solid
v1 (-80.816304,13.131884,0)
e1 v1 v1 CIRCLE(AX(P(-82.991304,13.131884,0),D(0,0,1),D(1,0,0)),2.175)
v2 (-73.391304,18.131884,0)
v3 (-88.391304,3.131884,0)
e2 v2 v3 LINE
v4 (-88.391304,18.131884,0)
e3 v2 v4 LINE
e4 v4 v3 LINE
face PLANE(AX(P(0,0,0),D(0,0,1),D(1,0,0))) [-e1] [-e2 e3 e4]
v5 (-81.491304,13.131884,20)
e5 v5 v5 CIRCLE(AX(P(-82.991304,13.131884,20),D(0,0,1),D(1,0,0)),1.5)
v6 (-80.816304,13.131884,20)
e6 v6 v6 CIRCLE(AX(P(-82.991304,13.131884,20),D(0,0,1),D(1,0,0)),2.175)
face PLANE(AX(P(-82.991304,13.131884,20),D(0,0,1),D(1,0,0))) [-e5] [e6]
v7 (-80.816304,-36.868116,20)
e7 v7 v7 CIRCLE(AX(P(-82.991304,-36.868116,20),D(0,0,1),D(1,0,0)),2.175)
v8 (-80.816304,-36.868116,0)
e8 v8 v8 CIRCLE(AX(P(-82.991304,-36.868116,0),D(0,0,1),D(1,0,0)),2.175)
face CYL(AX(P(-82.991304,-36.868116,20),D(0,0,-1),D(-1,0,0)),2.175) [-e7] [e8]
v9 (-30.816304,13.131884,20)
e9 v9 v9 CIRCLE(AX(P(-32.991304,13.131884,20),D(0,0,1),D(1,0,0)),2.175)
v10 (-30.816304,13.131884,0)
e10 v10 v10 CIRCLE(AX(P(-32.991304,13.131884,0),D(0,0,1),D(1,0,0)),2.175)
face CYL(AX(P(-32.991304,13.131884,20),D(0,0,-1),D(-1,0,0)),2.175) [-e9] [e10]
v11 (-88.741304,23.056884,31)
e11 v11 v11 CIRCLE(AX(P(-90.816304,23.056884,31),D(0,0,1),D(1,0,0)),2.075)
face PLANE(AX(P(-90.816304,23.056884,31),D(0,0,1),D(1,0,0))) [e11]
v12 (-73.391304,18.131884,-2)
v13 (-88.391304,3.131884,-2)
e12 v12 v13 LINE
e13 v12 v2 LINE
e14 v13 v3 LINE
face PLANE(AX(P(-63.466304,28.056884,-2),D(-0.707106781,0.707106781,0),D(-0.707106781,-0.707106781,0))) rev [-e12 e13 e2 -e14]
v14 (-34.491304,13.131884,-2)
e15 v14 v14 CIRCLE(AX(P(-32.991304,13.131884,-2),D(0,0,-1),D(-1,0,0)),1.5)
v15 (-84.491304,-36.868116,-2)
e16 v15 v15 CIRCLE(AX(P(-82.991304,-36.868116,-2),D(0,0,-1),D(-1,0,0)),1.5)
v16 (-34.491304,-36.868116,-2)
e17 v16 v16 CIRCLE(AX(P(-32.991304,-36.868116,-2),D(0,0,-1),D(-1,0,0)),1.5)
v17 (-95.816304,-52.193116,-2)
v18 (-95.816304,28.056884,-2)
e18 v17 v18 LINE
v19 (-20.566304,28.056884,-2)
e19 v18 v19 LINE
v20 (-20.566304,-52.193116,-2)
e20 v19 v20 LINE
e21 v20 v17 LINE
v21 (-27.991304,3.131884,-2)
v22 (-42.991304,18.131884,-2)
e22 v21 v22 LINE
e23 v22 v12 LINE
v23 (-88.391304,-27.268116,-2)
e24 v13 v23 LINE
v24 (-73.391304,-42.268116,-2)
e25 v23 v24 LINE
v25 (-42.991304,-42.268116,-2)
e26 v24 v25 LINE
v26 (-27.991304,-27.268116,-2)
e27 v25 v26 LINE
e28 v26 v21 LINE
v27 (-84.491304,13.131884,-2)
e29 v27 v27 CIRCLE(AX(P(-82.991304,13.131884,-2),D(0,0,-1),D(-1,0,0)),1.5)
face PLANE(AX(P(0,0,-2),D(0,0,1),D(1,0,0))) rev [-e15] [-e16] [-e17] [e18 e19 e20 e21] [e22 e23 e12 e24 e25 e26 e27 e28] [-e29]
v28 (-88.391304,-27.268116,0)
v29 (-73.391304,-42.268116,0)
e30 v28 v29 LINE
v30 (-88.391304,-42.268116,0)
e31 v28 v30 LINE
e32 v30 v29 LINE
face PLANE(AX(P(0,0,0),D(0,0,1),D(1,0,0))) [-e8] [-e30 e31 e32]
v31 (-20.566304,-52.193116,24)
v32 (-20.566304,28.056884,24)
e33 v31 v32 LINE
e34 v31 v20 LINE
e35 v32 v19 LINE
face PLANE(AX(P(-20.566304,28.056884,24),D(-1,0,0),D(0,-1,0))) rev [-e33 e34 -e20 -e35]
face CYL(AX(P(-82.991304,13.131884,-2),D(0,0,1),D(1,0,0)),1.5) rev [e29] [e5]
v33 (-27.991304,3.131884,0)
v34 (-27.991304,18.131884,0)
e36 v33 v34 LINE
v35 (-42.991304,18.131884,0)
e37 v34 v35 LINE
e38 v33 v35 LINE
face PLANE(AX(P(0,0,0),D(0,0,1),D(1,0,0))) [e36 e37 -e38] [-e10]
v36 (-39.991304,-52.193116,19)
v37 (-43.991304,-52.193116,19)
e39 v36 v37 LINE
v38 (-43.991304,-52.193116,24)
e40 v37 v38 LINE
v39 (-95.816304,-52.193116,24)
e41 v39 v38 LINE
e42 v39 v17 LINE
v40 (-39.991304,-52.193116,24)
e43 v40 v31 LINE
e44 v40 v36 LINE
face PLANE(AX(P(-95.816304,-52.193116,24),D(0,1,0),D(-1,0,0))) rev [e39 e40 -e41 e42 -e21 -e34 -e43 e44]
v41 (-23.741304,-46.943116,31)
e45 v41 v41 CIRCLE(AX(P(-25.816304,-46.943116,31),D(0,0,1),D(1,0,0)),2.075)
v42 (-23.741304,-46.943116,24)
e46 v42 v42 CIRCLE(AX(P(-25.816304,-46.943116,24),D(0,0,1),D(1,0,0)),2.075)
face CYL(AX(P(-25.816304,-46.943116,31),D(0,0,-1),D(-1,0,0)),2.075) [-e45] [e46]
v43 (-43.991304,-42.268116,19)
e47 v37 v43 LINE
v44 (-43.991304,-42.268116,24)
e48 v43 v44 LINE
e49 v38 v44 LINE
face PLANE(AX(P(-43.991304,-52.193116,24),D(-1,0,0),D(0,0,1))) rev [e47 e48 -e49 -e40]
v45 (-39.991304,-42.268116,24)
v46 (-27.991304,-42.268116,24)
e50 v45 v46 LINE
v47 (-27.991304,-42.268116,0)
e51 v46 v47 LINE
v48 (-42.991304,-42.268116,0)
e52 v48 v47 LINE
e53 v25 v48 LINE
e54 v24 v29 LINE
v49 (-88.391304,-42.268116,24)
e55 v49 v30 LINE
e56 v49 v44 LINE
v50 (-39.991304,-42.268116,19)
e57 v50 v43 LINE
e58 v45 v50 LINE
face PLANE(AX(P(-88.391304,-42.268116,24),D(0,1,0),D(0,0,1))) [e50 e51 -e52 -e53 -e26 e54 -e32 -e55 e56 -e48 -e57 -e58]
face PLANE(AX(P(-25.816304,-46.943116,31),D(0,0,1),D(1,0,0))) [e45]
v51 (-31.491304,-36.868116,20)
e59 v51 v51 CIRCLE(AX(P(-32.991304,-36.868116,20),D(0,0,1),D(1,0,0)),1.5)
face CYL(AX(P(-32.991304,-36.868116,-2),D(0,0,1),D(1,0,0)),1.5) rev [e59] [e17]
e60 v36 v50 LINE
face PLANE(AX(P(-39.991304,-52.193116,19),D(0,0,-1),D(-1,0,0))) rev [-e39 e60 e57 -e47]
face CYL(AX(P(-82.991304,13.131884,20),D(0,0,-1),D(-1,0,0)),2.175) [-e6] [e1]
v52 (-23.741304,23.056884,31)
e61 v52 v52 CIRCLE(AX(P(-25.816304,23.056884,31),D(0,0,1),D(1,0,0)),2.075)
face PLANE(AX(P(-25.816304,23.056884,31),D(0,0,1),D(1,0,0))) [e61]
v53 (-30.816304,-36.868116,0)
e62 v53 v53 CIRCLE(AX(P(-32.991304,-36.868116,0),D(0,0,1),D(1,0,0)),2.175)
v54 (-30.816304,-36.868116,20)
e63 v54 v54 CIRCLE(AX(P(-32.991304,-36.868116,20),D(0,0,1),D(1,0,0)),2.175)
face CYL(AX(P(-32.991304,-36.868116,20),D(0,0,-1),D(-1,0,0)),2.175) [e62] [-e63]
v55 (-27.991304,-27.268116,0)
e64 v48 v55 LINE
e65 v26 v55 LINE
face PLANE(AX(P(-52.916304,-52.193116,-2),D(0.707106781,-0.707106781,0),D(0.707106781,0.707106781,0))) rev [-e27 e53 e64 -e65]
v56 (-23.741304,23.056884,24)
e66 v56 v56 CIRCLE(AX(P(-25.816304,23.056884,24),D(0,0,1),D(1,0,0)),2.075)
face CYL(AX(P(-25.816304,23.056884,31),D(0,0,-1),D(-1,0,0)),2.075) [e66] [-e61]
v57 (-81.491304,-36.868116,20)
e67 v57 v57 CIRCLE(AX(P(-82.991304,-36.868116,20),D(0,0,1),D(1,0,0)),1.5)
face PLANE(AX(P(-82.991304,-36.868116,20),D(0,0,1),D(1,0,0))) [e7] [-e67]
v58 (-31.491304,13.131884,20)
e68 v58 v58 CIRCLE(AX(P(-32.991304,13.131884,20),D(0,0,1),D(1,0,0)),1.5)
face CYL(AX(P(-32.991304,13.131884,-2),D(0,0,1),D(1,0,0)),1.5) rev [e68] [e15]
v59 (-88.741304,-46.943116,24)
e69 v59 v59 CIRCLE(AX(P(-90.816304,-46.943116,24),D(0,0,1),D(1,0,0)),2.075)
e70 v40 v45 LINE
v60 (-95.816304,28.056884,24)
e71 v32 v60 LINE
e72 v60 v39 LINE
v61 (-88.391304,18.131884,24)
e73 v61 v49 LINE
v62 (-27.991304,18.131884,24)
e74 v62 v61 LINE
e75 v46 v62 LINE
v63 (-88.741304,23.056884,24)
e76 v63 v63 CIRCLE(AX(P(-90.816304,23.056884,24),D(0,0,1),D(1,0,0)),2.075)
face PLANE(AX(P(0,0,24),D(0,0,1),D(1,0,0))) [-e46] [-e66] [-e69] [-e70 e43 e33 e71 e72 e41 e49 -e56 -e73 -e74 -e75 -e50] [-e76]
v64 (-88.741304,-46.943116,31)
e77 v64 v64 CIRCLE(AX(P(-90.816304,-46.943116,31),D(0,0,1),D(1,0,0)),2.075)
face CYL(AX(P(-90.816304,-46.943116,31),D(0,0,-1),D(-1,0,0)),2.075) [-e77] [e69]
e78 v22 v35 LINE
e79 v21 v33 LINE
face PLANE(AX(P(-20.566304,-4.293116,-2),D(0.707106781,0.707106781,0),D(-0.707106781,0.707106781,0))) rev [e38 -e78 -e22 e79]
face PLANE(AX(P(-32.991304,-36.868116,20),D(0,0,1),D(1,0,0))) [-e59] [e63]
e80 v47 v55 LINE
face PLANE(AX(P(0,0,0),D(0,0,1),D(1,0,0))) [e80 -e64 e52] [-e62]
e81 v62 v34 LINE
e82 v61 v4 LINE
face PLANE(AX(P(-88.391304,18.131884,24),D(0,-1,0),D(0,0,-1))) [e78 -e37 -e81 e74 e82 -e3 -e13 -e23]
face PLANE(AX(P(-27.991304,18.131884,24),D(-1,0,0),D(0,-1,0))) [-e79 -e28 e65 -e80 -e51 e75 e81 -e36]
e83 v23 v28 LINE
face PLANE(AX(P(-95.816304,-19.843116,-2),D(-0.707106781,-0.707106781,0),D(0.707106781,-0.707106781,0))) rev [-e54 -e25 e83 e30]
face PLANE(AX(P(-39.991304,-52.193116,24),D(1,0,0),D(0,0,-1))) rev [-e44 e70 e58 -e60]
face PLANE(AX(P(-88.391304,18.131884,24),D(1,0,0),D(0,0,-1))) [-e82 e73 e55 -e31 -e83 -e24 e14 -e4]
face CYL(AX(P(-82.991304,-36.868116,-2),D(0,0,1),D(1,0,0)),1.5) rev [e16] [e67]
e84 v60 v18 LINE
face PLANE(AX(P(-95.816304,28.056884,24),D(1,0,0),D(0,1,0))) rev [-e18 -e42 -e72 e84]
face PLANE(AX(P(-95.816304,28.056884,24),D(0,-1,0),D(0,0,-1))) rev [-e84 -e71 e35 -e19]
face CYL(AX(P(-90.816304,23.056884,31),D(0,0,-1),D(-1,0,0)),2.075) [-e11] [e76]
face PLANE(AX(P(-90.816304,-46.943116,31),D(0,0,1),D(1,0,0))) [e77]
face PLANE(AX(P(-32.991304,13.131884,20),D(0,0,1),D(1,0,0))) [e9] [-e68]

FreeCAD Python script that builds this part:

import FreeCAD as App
import Part
import Sketcher

V = App.Vector
Q = App.Units.Quantity

doc = App.newDocument("Part")
params = doc.addObject("Spreadsheet::Sheet", "Params")
for row, (alias, value) in enumerate([
    ("sketch1_width", "60.4 mm"),
    ("sketch1_width2", "75.25 mm"),
    ("sketch1_height", "80.25 mm"),
    ("pad1_length", "24 mm"),
    ("sketch2_diameter", "4.15 mm"),
    ("pad2_length", "7 mm"),
    ("sketch3_diameter", "3 mm"),
    ("sketch3_width", "32.35 mm"),
    ("pad3_length", "2 mm"),
    ("sketch4_diameter", "3 mm"),
    ("sketch4_diameter2", "4.35 mm"),
    ("pad4_length", "20 mm"),
    ("sketch5_width", "4 mm"),
    ("sketch5_height", "5 mm"),
    ("pocket1_length", "9.925 mm"),
    ("sketch6_width", "30.4 mm"),
    ("sketch6_width2", "10.55 mm"),
    ("sketch6_height", "15.55 mm"),
    ("pad5_length", "2 mm"),
], start=1):
    params.set(f"A{row}", alias)
    params.set(f"B{row}", "=" + value)
    params.setAlias(f"B{row}", alias)

body = doc.addObject("PartDesign::Body", "Body")

sketch1 = body.newObject("Sketcher::SketchObject", "Sketch")
sketch1.AttachmentSupport = (doc.getObject("XY_Plane"), [""])
sketch1.MapMode = "FlatFace"
sketch1.addGeometry([
    Part.LineSegment(V(-96, 28, 0), V(-96, -52, 0)),
    Part.LineSegment(V(-96, -52, 0), V(-21, -52, 0)),
    Part.LineSegment(V(-21, -52, 0), V(-21, 28, 0)),
    Part.LineSegment(V(-21, 28, 0), V(-96, 28, 0)),
    Part.LineSegment(V(-28, -42, 0), V(-88, -42, 0)),
    Part.LineSegment(V(-88, -42, 0), V(-88, 18, 0)),
    Part.LineSegment(V(-88, 18, 0), V(-28, 18, 0)),
    Part.LineSegment(V(-28, 18, 0), V(-28, -42, 0)),
], False)
sketch1.addConstraint([
    Sketcher.Constraint("Coincident", 0, 2, 1, 1),
    Sketcher.Constraint("Coincident", 1, 2, 2, 1),
    Sketcher.Constraint("Coincident", 2, 2, 3, 1),
    Sketcher.Constraint("Coincident", 3, 2, 0, 1),
    Sketcher.Constraint("Coincident", 4, 2, 5, 1),
    Sketcher.Constraint("Coincident", 5, 2, 6, 1),
    Sketcher.Constraint("Coincident", 6, 2, 7, 1),
    Sketcher.Constraint("Coincident", 7, 2, 4, 1),
    Sketcher.Constraint("Vertical", 0),
    Sketcher.Constraint("Horizontal", 1),
    Sketcher.Constraint("Vertical", 2),
    Sketcher.Constraint("Horizontal", 3),
    Sketcher.Constraint("Horizontal", 4),
    Sketcher.Constraint("Vertical", 5),
    Sketcher.Constraint("Horizontal", 6),
    Sketcher.Constraint("Vertical", 7),
    Sketcher.Constraint("Equal", 6, 5),
    Sketcher.Constraint("DistanceX", 4, 2, 4, 1, Q("60.4 mm")),
    Sketcher.Constraint("DistanceX", 1, 1, 1, 2, Q("75.25 mm")),
    Sketcher.Constraint("DistanceY", 0, 2, 0, 1, Q("80.25 mm")),
    Sketcher.Constraint("DistanceX", 0, 2, 4, 2, Q("7.425 mm")),
    Sketcher.Constraint("DistanceY", 0, 2, 4, 2, Q("9.925 mm")),
    Sketcher.Constraint("DistanceX", 0, 2, -1, 1, Q("95.816304 mm")),
    Sketcher.Constraint("DistanceY", 0, 2, -1, 1, Q("52.193116 mm")),
])
sketch1.setExpression("Constraints[17]", "Params.sketch1_width")
sketch1.setExpression("Constraints[18]", "Params.sketch1_width2")
sketch1.setExpression("Constraints[19]", "Params.sketch1_height")
pad1 = body.newObject("PartDesign::Pad", "Pad")
pad1.Profile = sketch1
pad1.setExpression("Length", "Params.pad1_length")

sketch2 = body.newObject("Sketcher::SketchObject", "Sketch001")
sketch2.AttachmentSupport = (doc.getObject("XY_Plane"), [""])
sketch2.MapMode = "FlatFace"
sketch2.AttachmentOffset = App.Placement(V(0, 0, 24), App.Rotation())
sketch2.addGeometry([
    Part.Circle(V(-90.8, 23.1, 0), V(0, 0, 1), 2.1),
    Part.Circle(V(-25.8, 23.1, 0), V(0, 0, 1), 2.1),
    Part.Circle(V(-25.8, -46.9, 0), V(0, 0, 1), 2.1),
    Part.Circle(V(-90.8, -46.9, 0), V(0, 0, 1), 2.1),
], False)
sketch2.addConstraint([
    Sketcher.Constraint("Equal", 0, 1),
    Sketcher.Constraint("Equal", 1, 2),
    Sketcher.Constraint("Equal", 2, 3),
    Sketcher.Constraint("Horizontal", 0, 3, 1, 3),
    Sketcher.Constraint("Horizontal", 2, 3, 3, 3),
    Sketcher.Constraint("Vertical", 1, 3, 2, 3),
    Sketcher.Constraint("Vertical", 0, 3, 3, 3),
    Sketcher.Constraint("Diameter", 0, Q("4.15 mm")),
    Sketcher.Constraint("DistanceX", 0, 3, 1, 3, Q("65 mm")),
    Sketcher.Constraint("DistanceY", 2, 3, 1, 3, Q("70 mm")),
    Sketcher.Constraint("DistanceX", 0, 3, -1, 1, Q("90.816304 mm")),
    Sketcher.Constraint("DistanceY", -1, 1, 0, 3, Q("23.056884 mm")),
])
sketch2.setExpression("Constraints[7]", "Params.sketch2_diameter")
pad2 = body.newObject("PartDesign::Pad", "Pad001")
pad2.Profile = sketch2
pad2.setExpression("Length", "Params.pad2_length")

sketch3 = body.newObject("Sketcher::SketchObject", "Sketch002")
sketch3.AttachmentSupport = (doc.getObject("XY_Plane"), [""])
sketch3.MapMode = "FlatFace"
sketch3.addGeometry([
    Part.LineSegment(V(-20.6, -19.8, 0), V(-20.6, -52.2, 0)),
    Part.LineSegment(V(-20.6, -52.2, 0), V(-52.9, -52.2, 0)),
    Part.LineSegment(V(-52.9, -52.2, 0), V(-20.6, -19.8, 0)),
    Part.Circle(V(-33, -36.9, 0), V(0, 0, 1), 1.5),
    Part.LineSegment(V(-95.8, -4.3, 0), V(-95.8, 28.1, 0)),
    Part.LineSegment(V(-95.8, 28.1, 0), V(-63.5, 28.1, 0)),
    Part.LineSegment(V(-63.5, 28.1, 0), V(-95.8, -4.3, 0)),
    Part.Circle(V(-83, 13.1, 0), V(0, 0, 1), 1.5),
    Part.LineSegment(V(-95.8, -19.8, 0), V(-63.5, -52.2, 0)),
    Part.LineSegment(V(-63.5, -52.2, 0), V(-95.8, -52.2, 0)),
    Part.LineSegment(V(-95.8, -52.2, 0), V(-95.8, -19.8, 0)),
    Part.Circle(V(-83, -36.9, 0), V(0, 0, 1), 1.5),
    Part.LineSegment(V(-20.6, -4.3, 0), V(-52.9, 28.1, 0)),
    Part.LineSegment(V(-52.9, 28.1, 0), V(-20.6, 28.1, 0)),
    Part.LineSegment(V(-20.6, 28.1, 0), V(-20.6, -4.3, 0)),
    Part.Circle(V(-33, 13.1, 0), V(0, 0, 1), 1.5),
], False)
sketch3.addConstraint([
    Sketcher.Constraint("Coincident", 0, 2, 1, 1),
    Sketcher.Constraint("Coincident", 1, 2, 2, 1),
    Sketcher.Constraint("Coincident", 2, 2, 0, 1),
    Sketcher.Constraint("Coincident", 4, 2, 5, 1),
    Sketcher.Constraint("Coincident", 5, 2, 6, 1),
    Sketcher.Constraint("Coincident", 6, 2, 4, 1),
    Sketcher.Constraint("Coincident", 8, 2, 9, 1),
    Sketcher.Constraint("Coincident", 9, 2, 10, 1),
    Sketcher.Constraint("Coincident", 10, 2, 8, 1),
    Sketcher.Constraint("Coincident", 12, 2, 13, 1),
    Sketcher.Constraint("Coincident", 13, 2, 14, 1),
    Sketcher.Constraint("Coincident", 14, 2, 12, 1),
    Sketcher.Constraint("Vertical", 0),
    Sketcher.Constraint("Horizontal", 1),
    Sketcher.Constraint("Vertical", 4),
    Sketcher.Constraint("Horizontal", 5),
    Sketcher.Constraint("Horizontal", 9),
    Sketcher.Constraint("Vertical", 10),
    Sketcher.Constraint("Horizontal", 13),
    Sketcher.Constraint("Vertical", 14),
    Sketcher.Constraint("Equal", 3, 7),
    Sketcher.Constraint("Equal", 7, 11),
    Sketcher.Constraint("Equal", 11, 15),
    Sketcher.Constraint("Parallel", 2, 6),
    Sketcher.Constraint("Perpendicular", 6, 8),
    Sketcher.Constraint("Parallel", 8, 12),
    Sketcher.Constraint("Horizontal", 3, 3, 11, 3),
    Sketcher.Constraint("Horizontal", 7, 3, 15, 3),
    Sketcher.Constraint("Horizontal", 1, 2, 8, 2),
    Sketcher.Constraint("Horizontal", 2, 2, 10, 2),
    Sketcher.Constraint("Horizontal", 5, 2, 12, 2),
    Sketcher.Constraint("Horizontal", 6, 2, 14, 2),
    Sketcher.Constraint("Vertical", 7, 3, 11, 3),
    Sketcher.Constraint("Vertical", 3, 3, 15, 3),
    Sketcher.Constraint("Vertical", 5, 2, 8, 2),
    Sketcher.Constraint("Vertical", 6, 2, 9, 2),
    Sketcher.Constraint("Vertical", 1, 2, 12, 2),
    Sketcher.Constraint("Vertical", 2, 2, 13, 2),
    Sketcher.Constraint("Diameter", 3, Q("3 mm")),
    Sketcher.Constraint("DistanceX", 7, 3, 3, 3, Q("50 mm")),
    Sketcher.Constraint("DistanceY", 3, 3, 7, 3, Q("50 mm")),
    Sketcher.Constraint("DistanceX", 1, 2, 1, 1, Q("32.35 mm")),
    Sketcher.Constraint("DistanceY", 2, 2, 4, 2, Q("47.9 mm")),
    Sketcher.Constraint("DistanceX", 5, 2, 2, 2, Q("42.9 mm")),
    Sketcher.Constraint("DistanceX", 3, 3, 0, 2, Q("12.425 mm")),
    Sketcher.Constraint("DistanceY", 0, 2, 3, 3, Q("15.325 mm")),
    Sketcher.Constraint("DistanceX", 3, 3, -1, 1, Q("32.991304 mm")),
    Sketcher.Constraint("DistanceY", 3, 3, -1, 1, Q("36.868116 mm")),
])
sketch3.setExpression("Constraints[38]", "Params.sketch3_diameter")
sketch3.setExpression("Constraints[41]", "Params.sketch3_width")
pad3 = body.newObject("PartDesign::Pad", "Pad002")
pad3.Profile = sketch3
pad3.setExpression("Length", "Params.pad3_length")
pad3.Reversed = True

sketch4 = body.newObject("Sketcher::SketchObject", "Sketch003")
sketch4.AttachmentSupport = (doc.getObject("XY_Plane"), [""])
sketch4.MapMode = "FlatFace"
sketch4.addGeometry([
    Part.Circle(V(-83, 13.1, 0), V(0, 0, 1), 2.2),
    Part.Circle(V(-83, 13.1, 0), V(0, 0, 1), 1.5),
    Part.Circle(V(-33, 13.1, 0), V(0, 0, 1), 2.2),
    Part.Circle(V(-33, 13.1, 0), V(0, 0, 1), 1.5),
    Part.Circle(V(-33, -36.9, 0), V(0, 0, 1), 2.2),
    Part.Circle(V(-33, -36.9, 0), V(0, 0, 1), 1.5),
    Part.Circle(V(-83, -36.9, 0), V(0, 0, 1), 2.2),
    Part.Circle(V(-83, -36.9, 0), V(0, 0, 1), 1.5),
], False)
sketch4.addConstraint([
    Sketcher.Constraint("Coincident", 1, 3, 0, 3),
    Sketcher.Constraint("Coincident", 3, 3, 2, 3),
    Sketcher.Constraint("Coincident", 5, 3, 4, 3),
    Sketcher.Constraint("Coincident", 7, 3, 6, 3),
    Sketcher.Constraint("Equal", 0, 2),
    Sketcher.Constraint("Equal", 1, 3),
    Sketcher.Constraint("Equal", 2, 4),
    Sketcher.Constraint("Equal", 3, 5),
    Sketcher.Constraint("Equal", 4, 6),
    Sketcher.Constraint("Equal", 5, 7),
    Sketcher.Constraint("Horizontal", 1, 3, 2, 3),
    Sketcher.Constraint("Horizontal", 5, 3, 6, 3),
    Sketcher.Constraint("Vertical", 3, 3, 4, 3),
    Sketcher.Constraint("Vertical", 1, 3, 6, 3),
    Sketcher.Constraint("Diameter", 1, Q("3 mm")),
    Sketcher.Constraint("Diameter", 0, Q("4.35 mm")),
    Sketcher.Constraint("DistanceX", 0, 3, 2, 3, Q("50 mm")),
    Sketcher.Constraint("DistanceY", 4, 3, 2, 3, Q("50 mm")),
    Sketcher.Constraint("DistanceX", 0, 3, -1, 1, Q("82.991304 mm")),
    Sketcher.Constraint("DistanceY", -1, 1, 0, 3, Q("13.131884 mm")),
])
sketch4.setExpression("Constraints[14]", "Params.sketch4_diameter")
sketch4.setExpression("Constraints[15]", "Params.sketch4_diameter2")
pad4 = body.newObject("PartDesign::Pad", "Pad003")
pad4.Profile = sketch4
pad4.setExpression("Length", "Params.pad4_length")

sketch5 = body.newObject("Sketcher::SketchObject", "Sketch004")
sketch5.AttachmentSupport = (doc.getObject("XZ_Plane"), [""])
sketch5.MapMode = "FlatFace"
sketch5.AttachmentOffset = App.Placement(V(0, 0, 42.268116), App.Rotation())
sketch5.addGeometry([
    Part.LineSegment(V(-44, 19, 0), V(-44, 24, 0)),
    Part.LineSegment(V(-44, 24, 0), V(-40, 24, 0)),
    Part.LineSegment(V(-40, 24, 0), V(-40, 19, 0)),
    Part.LineSegment(V(-40, 19, 0), V(-44, 19, 0)),
], False)
sketch5.addConstraint([
    Sketcher.Constraint("Coincident", 0, 2, 1, 1),
    Sketcher.Constraint("Coincident", 1, 2, 2, 1),
    Sketcher.Constraint("Coincident", 2, 2, 3, 1),
    Sketcher.Constraint("Coincident", 3, 2, 0, 1),
    Sketcher.Constraint("Vertical", 0),
    Sketcher.Constraint("Horizontal", 1),
    Sketcher.Constraint("Vertical", 2),
    Sketcher.Constraint("Horizontal", 3),
    Sketcher.Constraint("DistanceX", 1, 1, 1, 2, Q("4 mm")),
    Sketcher.Constraint("DistanceY", 0, 1, 0, 2, Q("5 mm")),
    Sketcher.Constraint("DistanceY", -1, 1, 0, 2, Q("24 mm")),
    Sketcher.Constraint("DistanceX", 0, 2, -1, 1, Q("43.991304 mm")),
])
sketch5.setExpression("Constraints[8]", "Params.sketch5_width")
sketch5.setExpression("Constraints[9]", "Params.sketch5_height")
pocket1 = body.newObject("PartDesign::Pocket", "Pocket")
pocket1.Profile = sketch5
pocket1.setExpression("Length", "Params.pocket1_length")
pocket1.Reversed = True

sketch6 = body.newObject("Sketcher::SketchObject", "Sketch005")
sketch6.AttachmentSupport = (doc.getObject("XY_Plane"), [""])
sketch6.MapMode = "FlatFace"
sketch6.addGeometry([
    Part.LineSegment(V(-53, 28, 0), V(-43, 18, 0)),
    Part.LineSegment(V(-43, 18, 0), V(-73, 18, 0)),
    Part.LineSegment(V(-73, 18, 0), V(-63, 28, 0)),
    Part.LineSegment(V(-63, 28, 0), V(-53, 28, 0)),
    Part.LineSegment(V(-28, -27, 0), V(-28, 3, 0)),
    Part.LineSegment(V(-28, 3, 0), V(-21, -4, 0)),
    Part.LineSegment(V(-21, -4, 0), V(-21, -20, 0)),
    Part.LineSegment(V(-21, -20, 0), V(-28, -27, 0)),
    Part.LineSegment(V(-43, -42, 0), V(-53, -52, 0)),
    Part.LineSegment(V(-53, -52, 0), V(-63, -52, 0)),
    Part.LineSegment(V(-63, -52, 0), V(-73, -42, 0)),
    Part.LineSegment(V(-73, -42, 0), V(-43, -42, 0)),
    Part.LineSegment(V(-88, 3, 0), V(-88, -27, 0)),
    Part.LineSegment(V(-88, -27, 0), V(-96, -20, 0)),
    Part.LineSegment(V(-96, -20, 0), V(-96, -4, 0)),
    Part.LineSegment(V(-96, -4, 0), V(-88, 3, 0)),
], False)
sketch6.addConstraint([
    Sketcher.Constraint("Coincident", 0, 2, 1, 1),
    Sketcher.Constraint("Coincident", 1, 2, 2, 1),
    Sketcher.Constraint("Coincident", 2, 2, 3, 1),
    Sketcher.Constraint("Coincident", 3, 2, 0, 1),
    Sketcher.Constraint("Coincident", 4, 2, 5, 1),
    Sketcher.Constraint("Coincident", 5, 2, 6, 1),
    Sketcher.Constraint("Coincident", 6, 2, 7, 1),
    Sketcher.Constraint("Coincident", 7, 2, 4, 1),
    Sketcher.Constraint("Coincident", 8, 2, 9, 1),
    Sketcher.Constraint("Coincident", 9, 2, 10, 1),
    Sketcher.Constraint("Coincident", 10, 2, 11, 1),
    Sketcher.Constraint("Coincident", 11, 2, 8, 1),
    Sketcher.Constraint("Coincident", 12, 2, 13, 1),
    Sketcher.Constraint("Coincident", 13, 2, 14, 1),
    Sketcher.Constraint("Coincident", 14, 2, 15, 1),
    Sketcher.Constraint("Coincident", 15, 2, 12, 1),
    Sketcher.Constraint("Horizontal", 1),
    Sketcher.Constraint("Horizontal", 3),
    Sketcher.Constraint("Vertical", 4),
    Sketcher.Constraint("Vertical", 6),
    Sketcher.Constraint("Horizontal", 9),
    Sketcher.Constraint("Horizontal", 11),
    Sketcher.Constraint("Vertical", 12),
    Sketcher.Constraint("Vertical", 14),
    Sketcher.Constraint("Perpendicular", 0, 2),
    Sketcher.Constraint("Perpendicular", 2, 5),
    Sketcher.Constraint("Perpendicular", 5, 7),
    Sketcher.Constraint("Parallel", 7, 8),
    Sketcher.Constraint("Perpendicular", 8, 10),
    Sketcher.Constraint("Parallel", 10, 13),
    Sketcher.Constraint("Perpendicular", 13, 15),
    Sketcher.Constraint("Horizontal", 7, 2, 12, 2),
    Sketcher.Constraint("Horizontal", 6, 2, 13, 2),
    Sketcher.Constraint("Horizontal", 5, 2, 14, 2),
    Sketcher.Constraint("Horizontal", 4, 2, 15, 2),
    Sketcher.Constraint("Vertical", 3, 2, 8, 2),
    Sketcher.Constraint("Vertical", 2, 2, 9, 2),
    Sketcher.Constraint("Vertical", 1, 2, 10, 2),
    Sketcher.Constraint("Equal", 11, 4),
    Sketcher.Constraint("DistanceX", 1, 2, 1, 1, Q("30.4 mm")),
    Sketcher.Constraint("DistanceX", 0, 2, 4, 2, Q("15 mm")),
    Sketcher.Constraint("DistanceY", 4, 2, 0, 2, Q("15 mm")),
    Sketcher.Constraint("DistanceY", 10, 2, 7, 2, Q("15 mm")),
    Sketcher.Constraint("DistanceX", 12, 2, 10, 2, Q("15 mm")),
    Sketcher.Constraint("DistanceX", 3, 1, 3, 2, Q("10.55 mm")),
    Sketcher.Constraint("DistanceY", 6, 2, 6, 1, Q("15.55 mm")),
    Sketcher.Constraint("DistanceX", 0, 2, -1, 1, Q("42.991304 mm")),
    Sketcher.Constraint("DistanceY", -1, 1, 0, 2, Q("18.131884 mm")),
])
sketch6.setExpression("Constraints[39]", "Params.sketch6_width")
sketch6.setExpression("Constraints[44]", "Params.sketch6_width2")
sketch6.setExpression("Constraints[45]", "Params.sketch6_height")
pad5 = body.newObject("PartDesign::Pad", "Pad004")
pad5.Profile = sketch6
pad5.setExpression("Length", "Params.pad5_length")
pad5.Reversed = True

doc.recompute()
